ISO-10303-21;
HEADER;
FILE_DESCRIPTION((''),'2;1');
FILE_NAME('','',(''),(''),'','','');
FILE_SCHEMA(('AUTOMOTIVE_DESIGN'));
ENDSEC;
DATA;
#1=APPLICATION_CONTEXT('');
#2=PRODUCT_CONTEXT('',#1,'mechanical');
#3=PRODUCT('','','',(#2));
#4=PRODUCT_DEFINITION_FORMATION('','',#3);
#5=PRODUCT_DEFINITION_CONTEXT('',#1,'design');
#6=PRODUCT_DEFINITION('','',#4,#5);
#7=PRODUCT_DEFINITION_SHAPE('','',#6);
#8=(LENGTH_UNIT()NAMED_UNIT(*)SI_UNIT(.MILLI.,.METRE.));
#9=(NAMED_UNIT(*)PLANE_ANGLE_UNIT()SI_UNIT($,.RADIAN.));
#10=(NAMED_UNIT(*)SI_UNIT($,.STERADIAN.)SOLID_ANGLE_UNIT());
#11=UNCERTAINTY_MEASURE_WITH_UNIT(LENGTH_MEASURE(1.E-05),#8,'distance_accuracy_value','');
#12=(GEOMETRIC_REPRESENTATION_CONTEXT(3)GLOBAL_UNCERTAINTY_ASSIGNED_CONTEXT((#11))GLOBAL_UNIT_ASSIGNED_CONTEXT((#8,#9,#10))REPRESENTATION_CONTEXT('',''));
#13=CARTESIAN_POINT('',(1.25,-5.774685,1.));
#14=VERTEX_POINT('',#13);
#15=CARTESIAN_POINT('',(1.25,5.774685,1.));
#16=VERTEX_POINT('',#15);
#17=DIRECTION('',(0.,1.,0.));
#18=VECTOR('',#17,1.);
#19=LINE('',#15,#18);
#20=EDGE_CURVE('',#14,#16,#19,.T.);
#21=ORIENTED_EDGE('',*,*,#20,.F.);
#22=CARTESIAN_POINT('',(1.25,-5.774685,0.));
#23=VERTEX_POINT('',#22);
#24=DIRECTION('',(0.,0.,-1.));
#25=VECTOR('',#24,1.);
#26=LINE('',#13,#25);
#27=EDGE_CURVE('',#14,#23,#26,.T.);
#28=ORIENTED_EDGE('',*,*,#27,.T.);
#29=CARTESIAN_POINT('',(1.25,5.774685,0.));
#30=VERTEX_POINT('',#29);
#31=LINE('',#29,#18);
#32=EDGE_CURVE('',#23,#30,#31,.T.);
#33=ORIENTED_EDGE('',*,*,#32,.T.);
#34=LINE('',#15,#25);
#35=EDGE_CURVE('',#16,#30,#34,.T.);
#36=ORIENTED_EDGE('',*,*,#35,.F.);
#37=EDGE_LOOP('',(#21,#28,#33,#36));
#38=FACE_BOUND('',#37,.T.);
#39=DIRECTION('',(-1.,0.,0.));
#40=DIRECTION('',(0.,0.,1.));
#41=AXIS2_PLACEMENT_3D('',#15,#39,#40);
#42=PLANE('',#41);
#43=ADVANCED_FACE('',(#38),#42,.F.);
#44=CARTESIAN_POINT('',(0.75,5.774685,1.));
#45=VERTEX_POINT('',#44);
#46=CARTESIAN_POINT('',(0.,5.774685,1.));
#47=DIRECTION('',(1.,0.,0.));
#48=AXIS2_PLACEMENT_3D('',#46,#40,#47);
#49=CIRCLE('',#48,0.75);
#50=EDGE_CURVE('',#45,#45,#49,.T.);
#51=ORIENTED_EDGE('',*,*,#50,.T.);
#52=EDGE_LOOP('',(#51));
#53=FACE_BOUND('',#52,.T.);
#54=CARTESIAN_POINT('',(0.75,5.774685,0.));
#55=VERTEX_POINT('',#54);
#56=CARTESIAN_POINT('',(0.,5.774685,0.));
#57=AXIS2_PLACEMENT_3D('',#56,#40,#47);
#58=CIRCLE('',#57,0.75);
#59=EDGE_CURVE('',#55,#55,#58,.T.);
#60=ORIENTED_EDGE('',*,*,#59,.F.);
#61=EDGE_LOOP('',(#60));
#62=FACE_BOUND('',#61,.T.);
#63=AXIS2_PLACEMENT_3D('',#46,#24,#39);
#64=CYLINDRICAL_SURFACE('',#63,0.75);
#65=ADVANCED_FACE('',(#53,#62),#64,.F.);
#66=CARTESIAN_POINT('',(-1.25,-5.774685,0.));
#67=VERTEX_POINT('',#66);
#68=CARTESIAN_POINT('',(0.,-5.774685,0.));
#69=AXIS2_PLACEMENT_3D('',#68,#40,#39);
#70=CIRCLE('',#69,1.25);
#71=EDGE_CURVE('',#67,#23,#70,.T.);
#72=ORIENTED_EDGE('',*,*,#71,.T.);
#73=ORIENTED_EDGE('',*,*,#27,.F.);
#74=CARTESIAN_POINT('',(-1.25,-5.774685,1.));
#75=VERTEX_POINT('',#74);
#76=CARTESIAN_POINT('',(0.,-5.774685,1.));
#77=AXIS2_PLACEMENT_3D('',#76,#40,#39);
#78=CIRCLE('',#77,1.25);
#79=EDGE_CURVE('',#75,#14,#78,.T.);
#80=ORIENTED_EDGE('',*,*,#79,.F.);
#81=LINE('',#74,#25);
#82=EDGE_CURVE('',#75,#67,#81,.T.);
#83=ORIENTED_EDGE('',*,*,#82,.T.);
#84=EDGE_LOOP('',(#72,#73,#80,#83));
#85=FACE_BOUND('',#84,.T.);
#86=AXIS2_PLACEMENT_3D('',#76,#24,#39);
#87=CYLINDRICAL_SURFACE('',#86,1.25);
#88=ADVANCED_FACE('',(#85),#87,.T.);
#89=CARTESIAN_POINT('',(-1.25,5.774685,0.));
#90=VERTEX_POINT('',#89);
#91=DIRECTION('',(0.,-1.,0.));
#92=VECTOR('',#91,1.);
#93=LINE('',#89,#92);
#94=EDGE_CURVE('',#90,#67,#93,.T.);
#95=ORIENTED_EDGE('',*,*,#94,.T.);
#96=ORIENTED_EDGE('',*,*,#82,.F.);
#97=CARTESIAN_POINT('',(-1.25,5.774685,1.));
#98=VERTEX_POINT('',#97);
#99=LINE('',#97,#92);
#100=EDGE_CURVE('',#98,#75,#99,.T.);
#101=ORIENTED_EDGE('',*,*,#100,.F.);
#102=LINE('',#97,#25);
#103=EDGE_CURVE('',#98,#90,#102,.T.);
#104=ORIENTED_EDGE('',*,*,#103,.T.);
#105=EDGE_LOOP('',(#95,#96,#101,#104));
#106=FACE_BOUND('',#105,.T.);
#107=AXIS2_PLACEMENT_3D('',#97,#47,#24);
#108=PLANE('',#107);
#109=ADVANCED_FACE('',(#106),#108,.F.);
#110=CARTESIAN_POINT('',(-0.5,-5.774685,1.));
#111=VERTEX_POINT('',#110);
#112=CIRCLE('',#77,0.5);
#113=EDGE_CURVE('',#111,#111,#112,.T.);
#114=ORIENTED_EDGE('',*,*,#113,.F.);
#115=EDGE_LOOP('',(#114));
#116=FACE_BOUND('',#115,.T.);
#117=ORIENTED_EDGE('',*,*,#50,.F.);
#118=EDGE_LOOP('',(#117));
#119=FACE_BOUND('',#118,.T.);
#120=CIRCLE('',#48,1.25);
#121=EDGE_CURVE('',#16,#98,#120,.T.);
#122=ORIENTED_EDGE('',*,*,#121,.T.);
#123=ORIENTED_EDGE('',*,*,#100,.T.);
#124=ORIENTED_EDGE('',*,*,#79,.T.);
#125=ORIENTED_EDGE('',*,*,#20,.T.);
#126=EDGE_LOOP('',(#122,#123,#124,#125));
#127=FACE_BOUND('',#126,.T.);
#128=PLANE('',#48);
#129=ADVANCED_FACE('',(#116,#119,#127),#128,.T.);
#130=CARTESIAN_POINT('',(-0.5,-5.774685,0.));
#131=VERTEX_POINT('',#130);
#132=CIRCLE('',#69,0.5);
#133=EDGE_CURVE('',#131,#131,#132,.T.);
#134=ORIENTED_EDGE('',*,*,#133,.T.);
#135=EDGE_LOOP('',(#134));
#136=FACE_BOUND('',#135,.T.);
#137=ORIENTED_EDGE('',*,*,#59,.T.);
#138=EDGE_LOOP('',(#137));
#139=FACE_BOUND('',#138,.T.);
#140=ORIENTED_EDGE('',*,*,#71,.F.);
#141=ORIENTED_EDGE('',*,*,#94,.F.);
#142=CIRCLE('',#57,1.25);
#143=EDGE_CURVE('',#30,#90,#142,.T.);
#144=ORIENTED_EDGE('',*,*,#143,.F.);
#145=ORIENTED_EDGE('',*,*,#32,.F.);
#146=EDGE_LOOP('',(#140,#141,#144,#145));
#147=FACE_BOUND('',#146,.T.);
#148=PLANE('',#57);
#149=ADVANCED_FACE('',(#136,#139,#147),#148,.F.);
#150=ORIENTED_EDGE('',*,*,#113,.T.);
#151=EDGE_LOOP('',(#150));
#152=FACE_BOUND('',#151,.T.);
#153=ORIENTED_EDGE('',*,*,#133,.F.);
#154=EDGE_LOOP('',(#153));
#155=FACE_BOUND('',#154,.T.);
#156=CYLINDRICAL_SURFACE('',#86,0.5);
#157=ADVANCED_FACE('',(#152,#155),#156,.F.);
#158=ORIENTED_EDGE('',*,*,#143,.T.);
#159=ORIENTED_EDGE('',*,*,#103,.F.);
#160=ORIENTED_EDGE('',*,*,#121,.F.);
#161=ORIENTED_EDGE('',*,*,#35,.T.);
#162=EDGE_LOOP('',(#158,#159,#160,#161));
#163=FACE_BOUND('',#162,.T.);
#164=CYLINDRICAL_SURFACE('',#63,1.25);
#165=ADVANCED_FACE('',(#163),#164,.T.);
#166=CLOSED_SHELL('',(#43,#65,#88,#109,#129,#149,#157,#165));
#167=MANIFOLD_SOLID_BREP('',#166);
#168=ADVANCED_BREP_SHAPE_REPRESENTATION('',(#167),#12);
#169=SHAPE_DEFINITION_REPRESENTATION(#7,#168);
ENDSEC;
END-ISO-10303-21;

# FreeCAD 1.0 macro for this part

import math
import FreeCAD as App
import Part
import Sketcher

V = App.Vector
Q = App.Units.Quantity

doc = App.newDocument("Part")
params = doc.addObject("Spreadsheet::Sheet", "Params")
for row, (alias, value) in enumerate([
    ("sketch1_diameter", "1 mm"),
    ("sketch1_diameter2", "1.5 mm"),
    ("sketch1_radius", "1.25 mm"),
    ("pad1_length", "1 mm"),
], start=1):
    params.set(f"A{row}", alias)
    params.set(f"B{row}", "=" + value)
    params.setAlias(f"B{row}", alias)

body = doc.addObject("PartDesign::Body", "Body")

sketch1 = body.newObject("Sketcher::SketchObject", "Sketch")
sketch1.AttachmentSupport = (doc.getObject("XY_Plane"), [""])
sketch1.MapMode = "FlatFace"
sketch1.addGeometry(Part.LineSegment(V(-1.2, 5.8, 0), V(-1.2, -5.8, 0)), False)
sketch1.addGeometry(Part.ArcOfCircle(Part.Circle(V(0, -5.8, 0), V(0, 0, 1), 1.2), math.radians(180), math.radians(360)), False)
sketch1.addGeometry(Part.LineSegment(V(1.2, -5.8, 0), V(1.2, 5.8, 0)), False)
sketch1.addGeometry(Part.ArcOfCircle(Part.Circle(V(0, 5.8, 0), V(0, 0, 1), 1.2), math.radians(0), math.radians(180)), False)
sketch1.addGeometry(Part.Circle(V(0, -5.8, 0), V(0, 0, 1), 0.5), False)
sketch1.addGeometry(Part.Circle(V(0, 5.8, 0), V(0, 0, 1), 0.8), False)
sketch1.addConstraint(Sketcher.Constraint("Tangent", 0, 2, 1, 1))
sketch1.addConstraint(Sketcher.Constraint("Tangent", 1, 2, 2, 1))
sketch1.addConstraint(Sketcher.Constraint("Tangent", 2, 2, 3, 1))
sketch1.addConstraint(Sketcher.Constraint("Tangent", 3, 2, 0, 1))
sketch1.addConstraint(Sketcher.Constraint("Vertical", 0))
sketch1.addConstraint(Sketcher.Constraint("Vertical", 2))
sketch1.addConstraint(Sketcher.Constraint("Coincident", 4, 3, 1, 3))
sketch1.addConstraint(Sketcher.Constraint("Coincident", 5, 3, 3, 3))
sketch1.addConstraint(Sketcher.Constraint("Symmetric", 1, 3, 3, 3, -1, 1))
sketch1.addConstraint(Sketcher.Constraint("Diameter", 4, Q("1 mm")))
sketch1.addConstraint(Sketcher.Constraint("Diameter", 5, Q("1.5 mm")))
sketch1.addConstraint(Sketcher.Constraint("Radius", 1, Q("1.25 mm")))
sketch1.addConstraint(Sketcher.Constraint("DistanceY", 0, 2, 0, 1, Q("11.54937 mm")))
sketch1.setExpression("Constraints[9]", "Params.sketch1_diameter")
sketch1.setExpression("Constraints[10]", "Params.sketch1_diameter2")
sketch1.setExpression("Constraints[11]", "Params.sketch1_radius")
pad1 = body.newObject("PartDesign::Pad", "Pad")
pad1.Profile = sketch1
pad1.setExpression("Length", "Params.pad1_length")

doc.recompute()
